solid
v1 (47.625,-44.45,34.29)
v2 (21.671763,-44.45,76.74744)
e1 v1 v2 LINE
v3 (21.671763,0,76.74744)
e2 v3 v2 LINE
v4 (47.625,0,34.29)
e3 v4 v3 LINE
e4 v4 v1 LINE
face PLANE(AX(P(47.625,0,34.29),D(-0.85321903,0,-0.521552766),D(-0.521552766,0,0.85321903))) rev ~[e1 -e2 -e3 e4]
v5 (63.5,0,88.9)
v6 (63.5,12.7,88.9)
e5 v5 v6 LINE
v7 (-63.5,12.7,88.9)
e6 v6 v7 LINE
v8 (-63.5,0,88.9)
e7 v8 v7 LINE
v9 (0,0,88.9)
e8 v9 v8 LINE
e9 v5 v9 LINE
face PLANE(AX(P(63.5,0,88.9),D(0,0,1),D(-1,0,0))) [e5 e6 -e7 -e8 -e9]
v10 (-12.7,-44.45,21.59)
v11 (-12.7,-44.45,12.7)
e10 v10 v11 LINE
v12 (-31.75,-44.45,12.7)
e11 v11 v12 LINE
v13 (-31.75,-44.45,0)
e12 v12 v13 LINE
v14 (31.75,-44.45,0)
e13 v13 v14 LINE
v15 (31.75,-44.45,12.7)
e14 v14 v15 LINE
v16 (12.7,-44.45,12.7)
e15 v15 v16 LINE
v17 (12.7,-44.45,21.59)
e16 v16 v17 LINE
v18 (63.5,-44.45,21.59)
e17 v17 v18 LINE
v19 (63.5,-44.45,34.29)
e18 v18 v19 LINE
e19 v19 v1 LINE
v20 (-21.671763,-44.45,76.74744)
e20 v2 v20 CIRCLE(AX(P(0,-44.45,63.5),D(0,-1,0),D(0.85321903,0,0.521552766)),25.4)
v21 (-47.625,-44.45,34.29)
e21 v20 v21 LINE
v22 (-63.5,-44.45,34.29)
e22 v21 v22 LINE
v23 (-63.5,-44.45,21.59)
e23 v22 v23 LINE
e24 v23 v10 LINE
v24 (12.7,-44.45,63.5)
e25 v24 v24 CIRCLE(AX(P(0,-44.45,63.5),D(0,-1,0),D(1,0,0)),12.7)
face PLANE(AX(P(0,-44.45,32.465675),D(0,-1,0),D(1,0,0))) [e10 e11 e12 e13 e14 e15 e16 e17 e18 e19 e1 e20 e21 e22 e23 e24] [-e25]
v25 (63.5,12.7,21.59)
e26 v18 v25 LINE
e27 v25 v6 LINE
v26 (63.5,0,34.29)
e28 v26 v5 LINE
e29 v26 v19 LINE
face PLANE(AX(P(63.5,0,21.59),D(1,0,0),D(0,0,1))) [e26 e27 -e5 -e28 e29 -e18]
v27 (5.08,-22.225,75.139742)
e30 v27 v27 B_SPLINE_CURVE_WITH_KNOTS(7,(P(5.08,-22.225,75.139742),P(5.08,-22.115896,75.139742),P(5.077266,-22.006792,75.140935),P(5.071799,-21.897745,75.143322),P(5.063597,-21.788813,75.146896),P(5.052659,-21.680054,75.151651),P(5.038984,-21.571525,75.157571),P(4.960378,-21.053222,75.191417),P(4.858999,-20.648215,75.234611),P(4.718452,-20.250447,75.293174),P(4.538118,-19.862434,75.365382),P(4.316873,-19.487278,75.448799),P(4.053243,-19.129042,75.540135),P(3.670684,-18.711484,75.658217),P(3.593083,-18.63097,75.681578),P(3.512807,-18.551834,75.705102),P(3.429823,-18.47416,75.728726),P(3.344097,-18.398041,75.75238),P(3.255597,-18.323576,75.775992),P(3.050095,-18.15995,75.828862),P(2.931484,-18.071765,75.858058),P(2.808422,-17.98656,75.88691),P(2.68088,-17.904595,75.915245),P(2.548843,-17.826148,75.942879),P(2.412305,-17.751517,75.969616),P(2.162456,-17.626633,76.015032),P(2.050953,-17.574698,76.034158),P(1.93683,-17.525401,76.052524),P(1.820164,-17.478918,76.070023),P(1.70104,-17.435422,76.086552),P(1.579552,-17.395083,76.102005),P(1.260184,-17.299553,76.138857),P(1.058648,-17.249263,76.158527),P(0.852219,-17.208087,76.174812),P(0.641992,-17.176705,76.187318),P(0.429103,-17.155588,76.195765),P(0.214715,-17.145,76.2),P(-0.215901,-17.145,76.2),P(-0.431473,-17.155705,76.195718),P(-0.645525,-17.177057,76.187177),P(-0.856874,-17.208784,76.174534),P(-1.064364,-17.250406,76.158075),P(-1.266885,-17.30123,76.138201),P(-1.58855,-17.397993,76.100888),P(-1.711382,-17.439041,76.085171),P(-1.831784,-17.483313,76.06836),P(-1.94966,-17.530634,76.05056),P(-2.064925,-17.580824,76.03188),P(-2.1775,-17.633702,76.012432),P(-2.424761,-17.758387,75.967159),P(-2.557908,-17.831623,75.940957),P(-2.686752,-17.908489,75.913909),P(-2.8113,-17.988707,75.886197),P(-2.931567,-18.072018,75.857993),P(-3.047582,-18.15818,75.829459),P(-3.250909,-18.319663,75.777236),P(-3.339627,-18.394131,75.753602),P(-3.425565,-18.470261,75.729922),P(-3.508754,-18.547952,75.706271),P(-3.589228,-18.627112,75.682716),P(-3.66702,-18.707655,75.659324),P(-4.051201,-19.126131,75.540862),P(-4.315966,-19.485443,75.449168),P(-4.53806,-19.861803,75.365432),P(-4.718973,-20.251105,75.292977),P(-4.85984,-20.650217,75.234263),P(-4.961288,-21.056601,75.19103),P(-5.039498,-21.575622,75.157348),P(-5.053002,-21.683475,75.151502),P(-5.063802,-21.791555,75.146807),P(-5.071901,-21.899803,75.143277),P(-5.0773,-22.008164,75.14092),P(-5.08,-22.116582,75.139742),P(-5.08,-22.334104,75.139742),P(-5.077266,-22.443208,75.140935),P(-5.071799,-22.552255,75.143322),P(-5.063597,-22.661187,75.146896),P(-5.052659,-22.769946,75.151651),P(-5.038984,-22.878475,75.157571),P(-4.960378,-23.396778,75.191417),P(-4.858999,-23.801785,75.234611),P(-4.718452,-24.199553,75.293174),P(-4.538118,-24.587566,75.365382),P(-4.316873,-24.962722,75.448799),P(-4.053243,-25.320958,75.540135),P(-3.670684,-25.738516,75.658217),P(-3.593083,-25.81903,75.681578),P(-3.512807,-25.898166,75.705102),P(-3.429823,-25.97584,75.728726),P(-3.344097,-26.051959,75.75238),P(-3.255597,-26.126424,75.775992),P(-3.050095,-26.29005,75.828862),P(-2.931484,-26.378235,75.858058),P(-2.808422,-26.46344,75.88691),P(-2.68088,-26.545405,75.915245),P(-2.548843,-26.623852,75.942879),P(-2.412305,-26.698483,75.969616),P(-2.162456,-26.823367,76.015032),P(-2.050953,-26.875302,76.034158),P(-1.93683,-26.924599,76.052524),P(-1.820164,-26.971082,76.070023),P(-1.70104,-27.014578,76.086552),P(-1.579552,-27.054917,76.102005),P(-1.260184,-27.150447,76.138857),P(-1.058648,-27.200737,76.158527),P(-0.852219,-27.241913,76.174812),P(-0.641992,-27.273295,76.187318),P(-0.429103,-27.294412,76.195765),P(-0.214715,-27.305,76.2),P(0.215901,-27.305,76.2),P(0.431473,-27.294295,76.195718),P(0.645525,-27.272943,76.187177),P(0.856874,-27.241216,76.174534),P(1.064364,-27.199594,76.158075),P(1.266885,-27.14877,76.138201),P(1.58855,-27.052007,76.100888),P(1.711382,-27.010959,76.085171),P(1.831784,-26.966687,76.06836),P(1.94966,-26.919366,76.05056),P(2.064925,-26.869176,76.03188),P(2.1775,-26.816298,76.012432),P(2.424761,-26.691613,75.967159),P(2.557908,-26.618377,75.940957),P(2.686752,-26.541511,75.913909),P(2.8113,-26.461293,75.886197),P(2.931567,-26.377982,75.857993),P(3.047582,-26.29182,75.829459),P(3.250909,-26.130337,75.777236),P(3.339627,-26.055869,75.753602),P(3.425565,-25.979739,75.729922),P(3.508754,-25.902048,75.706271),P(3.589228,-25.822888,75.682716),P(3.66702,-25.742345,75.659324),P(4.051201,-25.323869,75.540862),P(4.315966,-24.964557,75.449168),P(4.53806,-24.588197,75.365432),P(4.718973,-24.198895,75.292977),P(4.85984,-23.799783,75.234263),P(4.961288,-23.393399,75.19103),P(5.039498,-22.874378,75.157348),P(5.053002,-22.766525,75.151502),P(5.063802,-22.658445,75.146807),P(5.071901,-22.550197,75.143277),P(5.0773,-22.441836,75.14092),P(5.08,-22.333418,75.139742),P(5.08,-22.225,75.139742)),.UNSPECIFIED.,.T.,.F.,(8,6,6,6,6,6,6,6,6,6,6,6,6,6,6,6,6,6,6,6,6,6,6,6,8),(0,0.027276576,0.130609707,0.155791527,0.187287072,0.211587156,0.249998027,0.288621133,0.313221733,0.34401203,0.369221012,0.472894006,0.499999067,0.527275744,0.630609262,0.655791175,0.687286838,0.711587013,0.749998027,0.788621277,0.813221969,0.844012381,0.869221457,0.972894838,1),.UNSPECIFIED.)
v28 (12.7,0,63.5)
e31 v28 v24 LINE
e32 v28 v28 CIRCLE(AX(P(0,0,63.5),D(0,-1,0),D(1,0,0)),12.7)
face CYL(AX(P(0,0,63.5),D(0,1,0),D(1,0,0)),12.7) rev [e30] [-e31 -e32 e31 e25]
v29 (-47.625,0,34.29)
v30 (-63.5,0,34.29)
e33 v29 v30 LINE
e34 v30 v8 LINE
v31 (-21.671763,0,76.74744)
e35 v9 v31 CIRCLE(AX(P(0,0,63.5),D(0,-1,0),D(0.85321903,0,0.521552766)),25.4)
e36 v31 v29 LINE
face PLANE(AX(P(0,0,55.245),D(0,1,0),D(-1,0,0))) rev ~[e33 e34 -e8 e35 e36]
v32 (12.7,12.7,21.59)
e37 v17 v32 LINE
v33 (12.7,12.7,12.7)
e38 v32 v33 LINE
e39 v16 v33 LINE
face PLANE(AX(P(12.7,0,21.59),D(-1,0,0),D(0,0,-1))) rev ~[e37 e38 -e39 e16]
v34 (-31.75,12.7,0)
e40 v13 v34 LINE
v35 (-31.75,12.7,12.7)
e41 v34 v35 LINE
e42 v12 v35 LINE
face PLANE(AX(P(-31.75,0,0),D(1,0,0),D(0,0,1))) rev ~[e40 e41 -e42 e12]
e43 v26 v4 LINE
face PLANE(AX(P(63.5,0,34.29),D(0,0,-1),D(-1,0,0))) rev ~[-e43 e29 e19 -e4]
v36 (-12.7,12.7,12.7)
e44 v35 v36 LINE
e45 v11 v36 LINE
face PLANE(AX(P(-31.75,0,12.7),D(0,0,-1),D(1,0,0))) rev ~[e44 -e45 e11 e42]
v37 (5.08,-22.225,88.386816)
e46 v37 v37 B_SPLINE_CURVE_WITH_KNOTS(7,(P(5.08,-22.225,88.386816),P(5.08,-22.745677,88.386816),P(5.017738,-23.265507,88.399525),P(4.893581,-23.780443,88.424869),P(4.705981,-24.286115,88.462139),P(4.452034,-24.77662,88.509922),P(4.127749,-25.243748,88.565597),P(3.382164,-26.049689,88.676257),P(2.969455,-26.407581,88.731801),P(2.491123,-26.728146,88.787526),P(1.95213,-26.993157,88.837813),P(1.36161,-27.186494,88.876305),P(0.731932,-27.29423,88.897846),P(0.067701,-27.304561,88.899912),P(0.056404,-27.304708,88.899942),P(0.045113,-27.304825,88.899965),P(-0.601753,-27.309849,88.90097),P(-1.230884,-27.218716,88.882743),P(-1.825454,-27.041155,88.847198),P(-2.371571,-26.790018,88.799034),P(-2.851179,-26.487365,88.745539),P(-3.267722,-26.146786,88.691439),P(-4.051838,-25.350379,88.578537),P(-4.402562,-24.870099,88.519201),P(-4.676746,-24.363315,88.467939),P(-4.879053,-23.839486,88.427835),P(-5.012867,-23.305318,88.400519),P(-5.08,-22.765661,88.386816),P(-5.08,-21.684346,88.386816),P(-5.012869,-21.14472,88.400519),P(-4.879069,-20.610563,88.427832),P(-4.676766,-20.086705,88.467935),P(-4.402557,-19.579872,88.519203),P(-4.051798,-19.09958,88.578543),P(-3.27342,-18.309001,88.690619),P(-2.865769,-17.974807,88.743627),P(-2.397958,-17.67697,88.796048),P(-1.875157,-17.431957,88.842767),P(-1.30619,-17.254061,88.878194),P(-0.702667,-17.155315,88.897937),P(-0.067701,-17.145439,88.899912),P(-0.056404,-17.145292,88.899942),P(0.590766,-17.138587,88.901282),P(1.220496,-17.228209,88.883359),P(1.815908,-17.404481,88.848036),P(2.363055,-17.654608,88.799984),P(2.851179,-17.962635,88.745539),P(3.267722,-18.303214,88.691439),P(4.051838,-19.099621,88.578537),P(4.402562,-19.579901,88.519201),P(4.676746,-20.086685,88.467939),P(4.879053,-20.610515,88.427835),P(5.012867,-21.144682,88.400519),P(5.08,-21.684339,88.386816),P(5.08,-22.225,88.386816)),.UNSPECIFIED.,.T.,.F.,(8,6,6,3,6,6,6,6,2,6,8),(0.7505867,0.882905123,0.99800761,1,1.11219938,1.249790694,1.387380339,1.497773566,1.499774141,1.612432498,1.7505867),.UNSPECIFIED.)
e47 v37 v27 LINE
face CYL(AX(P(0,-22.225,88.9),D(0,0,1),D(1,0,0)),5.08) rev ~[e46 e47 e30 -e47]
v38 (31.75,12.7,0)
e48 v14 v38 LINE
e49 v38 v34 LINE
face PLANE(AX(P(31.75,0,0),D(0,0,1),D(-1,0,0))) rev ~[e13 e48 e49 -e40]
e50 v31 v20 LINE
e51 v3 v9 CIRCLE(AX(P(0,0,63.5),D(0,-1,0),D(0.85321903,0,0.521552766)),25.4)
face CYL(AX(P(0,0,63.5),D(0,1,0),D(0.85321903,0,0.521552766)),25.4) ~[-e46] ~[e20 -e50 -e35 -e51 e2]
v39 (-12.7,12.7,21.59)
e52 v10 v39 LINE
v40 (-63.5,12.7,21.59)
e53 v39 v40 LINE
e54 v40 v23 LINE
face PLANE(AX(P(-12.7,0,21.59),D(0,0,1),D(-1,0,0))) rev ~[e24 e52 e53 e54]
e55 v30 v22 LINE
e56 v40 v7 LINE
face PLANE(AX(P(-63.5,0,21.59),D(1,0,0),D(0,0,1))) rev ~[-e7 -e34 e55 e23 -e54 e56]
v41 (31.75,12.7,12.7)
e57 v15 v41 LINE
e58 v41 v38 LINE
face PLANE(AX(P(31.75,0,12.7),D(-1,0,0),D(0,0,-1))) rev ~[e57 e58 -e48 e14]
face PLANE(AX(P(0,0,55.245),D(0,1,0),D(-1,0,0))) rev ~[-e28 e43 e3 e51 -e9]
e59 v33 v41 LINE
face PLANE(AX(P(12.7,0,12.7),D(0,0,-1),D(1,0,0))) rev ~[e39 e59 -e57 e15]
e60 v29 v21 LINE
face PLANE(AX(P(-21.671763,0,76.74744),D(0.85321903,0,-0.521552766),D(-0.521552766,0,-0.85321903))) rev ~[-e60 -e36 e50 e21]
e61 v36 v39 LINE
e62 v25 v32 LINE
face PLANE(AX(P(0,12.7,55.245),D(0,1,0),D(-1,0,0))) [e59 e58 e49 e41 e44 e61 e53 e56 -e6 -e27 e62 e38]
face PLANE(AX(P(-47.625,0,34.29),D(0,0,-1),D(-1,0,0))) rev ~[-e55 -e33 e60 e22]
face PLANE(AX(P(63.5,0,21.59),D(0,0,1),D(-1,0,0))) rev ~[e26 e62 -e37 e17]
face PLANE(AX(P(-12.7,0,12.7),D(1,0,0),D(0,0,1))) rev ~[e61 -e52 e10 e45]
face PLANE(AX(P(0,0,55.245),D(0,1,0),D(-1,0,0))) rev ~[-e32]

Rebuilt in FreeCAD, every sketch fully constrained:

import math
import FreeCAD as App
import Part
import Sketcher

V = App.Vector
Q = App.Units.Quantity


def add_polygon(sketch, points):
    """Adds a closed chain of lines whose ends are joined by coincident constraints."""
    first, n = sketch.GeometryCount, len(points)
    for a, b in zip(points, points[1:] + points[:1]):
        sketch.addGeometry(Part.LineSegment(App.Vector(*a, 0), App.Vector(*b, 0)), False)
    for i in range(n):
        sketch.addConstraint(Sketcher.Constraint("Coincident", first + i, 2, first + (i + 1) % n, 1))

doc = App.newDocument("Part")
params = doc.addObject("Spreadsheet::Sheet", "Params")
for row, (alias, value) in enumerate([
    ("sketch1_diameter", "1 in"),
    ("sketch1_radius", "1 in"),
    ("sketch1_width", "2 in"),
    ("sketch1_width2", "2.5 in"),
    ("sketch1_height", "0.5 in"),
    ("pad1_length", "1.75 in"),
    ("sketch2_width", "2 in"),
    ("sketch2_width2", "5 in"),
    ("sketch2_width3", "2.5 in"),
    ("sketch2_height", "0.5 in"),
    ("sketch2_height2", "2.65 in"),
    ("pad2_length", "0.5 in"),
    ("sketch3_diameter", "0.4 in"),
    ("pocket1_length", "13.761258 mm"),
], start=1):
    params.set(f"A{row}", alias)
    params.set(f"B{row}", "=" + value)
    params.setAlias(f"B{row}", alias)

body = doc.addObject("PartDesign::Body", "Body")

# Sketch on XZ plane
sketch1 = body.newObject("Sketcher::SketchObject", "Sketch")
sketch1.AttachmentSupport = (doc.getObject("XZ_Plane"), [""])
sketch1.MapMode = "FlatFace"
sketch1.addGeometry([
    Part.LineSegment(V(-32, 13, 0), V(-32, 0, 0)),  # 0
    Part.LineSegment(V(-32, 0, 0), V(32, 0, 0)),  # 1
    Part.LineSegment(V(32, 0, 0), V(32, 13, 0)),  # 2
    Part.LineSegment(V(32, 13, 0), V(13, 13, 0)),  # 3
    Part.LineSegment(V(13, 13, 0), V(13, 22, 0)),  # 4
    Part.LineSegment(V(13, 22, 0), V(64, 22, 0)),  # 5
    Part.LineSegment(V(64, 22, 0), V(64, 34, 0)),  # 6
    Part.LineSegment(V(64, 34, 0), V(48, 34, 0)),  # 7
    Part.LineSegment(V(48, 34, 0), V(22, 77, 0)),  # 8
    Part.ArcOfCircle(Part.Circle(V(0, 64, 0), V(0, 0, 1), 25), math.radians(31), math.radians(149)),  # 9
    Part.LineSegment(V(-22, 77, 0), V(-48, 34, 0)),  # 10
    Part.LineSegment(V(-48, 34, 0), V(-64, 34, 0)),  # 11
    Part.LineSegment(V(-64, 34, 0), V(-64, 22, 0)),  # 12
    Part.LineSegment(V(-64, 22, 0), V(-13, 22, 0)),  # 13
    Part.LineSegment(V(-13, 22, 0), V(-13, 13, 0)),  # 14
    Part.LineSegment(V(-13, 13, 0), V(-32, 13, 0)),  # 15
    Part.Circle(V(0, 64, 0), V(0, 0, 1), 13),  # 16
], False)
sketch1.addConstraint([
    Sketcher.Constraint("Coincident", 0, 2, 1, 1),
    Sketcher.Constraint("Coincident", 1, 2, 2, 1),
    Sketcher.Constraint("Coincident", 2, 2, 3, 1),
    Sketcher.Constraint("Coincident", 3, 2, 4, 1),
    Sketcher.Constraint("Coincident", 4, 2, 5, 1),
    Sketcher.Constraint("Coincident", 5, 2, 6, 1),
    Sketcher.Constraint("Coincident", 6, 2, 7, 1),
    Sketcher.Constraint("Coincident", 7, 2, 8, 1),
    Sketcher.Constraint("Tangent", 8, 2, 9, 1),
    Sketcher.Constraint("Tangent", 9, 2, 10, 1),
    Sketcher.Constraint("Coincident", 10, 2, 11, 1),
    Sketcher.Constraint("Coincident", 11, 2, 12, 1),
    Sketcher.Constraint("Coincident", 12, 2, 13, 1),
    Sketcher.Constraint("Coincident", 13, 2, 14, 1),
    Sketcher.Constraint("Coincident", 14, 2, 15, 1),
    Sketcher.Constraint("Coincident", 15, 2, 0, 1),
    Sketcher.Constraint("Vertical", 0),
    Sketcher.Constraint("Horizontal", 1),
    Sketcher.Constraint("Vertical", 2),
    Sketcher.Constraint("Horizontal", 3),
    Sketcher.Constraint("Vertical", 4),
    Sketcher.Constraint("Horizontal", 5),
    Sketcher.Constraint("Vertical", 6),
    Sketcher.Constraint("Horizontal", 7),
    Sketcher.Constraint("Horizontal", 11),
    Sketcher.Constraint("Vertical", 12),
    Sketcher.Constraint("Horizontal", 13),
    Sketcher.Constraint("Vertical", 14),
    Sketcher.Constraint("Horizontal", 15),
    Sketcher.Constraint("Coincident", 16, 3, 9, 3),
    Sketcher.Constraint("Symmetric", 0, 2, 1, 2, -1, 1),
    Sketcher.Constraint("Symmetric", 8, 2, 9, 2, -2),
    Sketcher.Constraint("Symmetric", 6, 2, 11, 2, -2),
    Sketcher.Constraint("Symmetric", 4, 2, 13, 2, -2),
    Sketcher.Constraint("Horizontal", 3, 2, 14, 2),
    Sketcher.Constraint("Equal", 2, 6),
    Sketcher.Constraint("Diameter", 16, Q("1 in")),
    Sketcher.Constraint("Radius", 9, Q("1 in")),
    Sketcher.Constraint("DistanceX", 5, 1, 5, 2, Q("2 in")),
    Sketcher.Constraint("DistanceX", 1, 1, 1, 2, Q("2.5 in")),
    Sketcher.Constraint("DistanceY", 0, 2, 0, 1, Q("0.5 in")),
    Sketcher.Constraint("DistanceY", 2, 2, 9, 3, Q("2 in")),
    Sketcher.Constraint("DistanceX", 13, 2, 4, 2, Q("1 in")),
    Sketcher.Constraint("DistanceY", 4, 1, 4, 2, Q("0.35 in")),
    Sketcher.Constraint("DistanceX", 7, 2, 7, 1, Q("0.625 in")),
])
sketch1.setExpression("Constraints[36]", "Params.sketch1_diameter")
sketch1.setExpression("Constraints[37]", "Params.sketch1_radius")
sketch1.setExpression("Constraints[38]", "Params.sketch1_width")
sketch1.setExpression("Constraints[39]", "Params.sketch1_width2")
sketch1.setExpression("Constraints[40]", "Params.sketch1_height")
pad1 = body.newObject("PartDesign::Pad", "Pad")
pad1.Profile = sketch1
pad1.setExpression("Length", "Params.pad1_length")

# Sketch on XZ plane
sketch2 = body.newObject("Sketcher::SketchObject", "Sketch001")
sketch2.AttachmentSupport = (doc.getObject("XZ_Plane"), [""])
sketch2.MapMode = "FlatFace"
add_polygon(sketch2, [(64, 89), (64, 22), (13, 22), (13, 13), (32, 13), (32, 0), (-32, 0), (-32, 13), (-13, 13), (-13, 22), (-64, 22), (-64, 89)])  # lines 0-11
sketch2.addConstraint([
    Sketcher.Constraint("Vertical", 0),
    Sketcher.Constraint("Horizontal", 1),
    Sketcher.Constraint("Vertical", 2),
    Sketcher.Constraint("Horizontal", 3),
    Sketcher.Constraint("Vertical", 4),
    Sketcher.Constraint("Horizontal", 5),
    Sketcher.Constraint("Vertical", 6),
    Sketcher.Constraint("Horizontal", 7),
    Sketcher.Constraint("Vertical", 8),
    Sketcher.Constraint("Horizontal", 9),
    Sketcher.Constraint("Vertical", 10),
    Sketcher.Constraint("Horizontal", 11),
    Sketcher.Constraint("Symmetric", 4, 2, 5, 2, -1, 1),
    Sketcher.Constraint("Symmetric", 2, 2, 7, 2, -2),
    Sketcher.Constraint("Symmetric", 0, 2, 9, 2, -2),
    Sketcher.Constraint("DistanceX", 1, 2, 1, 1, Q("2 in")),
    Sketcher.Constraint("DistanceX", 11, 1, 11, 2, Q("5 in")),
    Sketcher.Constraint("DistanceX", 5, 2, 5, 1, Q("2.5 in")),
    Sketcher.Constraint("DistanceY", 4, 2, 4, 1, Q("0.5 in")),
    Sketcher.Constraint("DistanceY", 6, 2, 10, 2, Q("3 in")),
    Sketcher.Constraint("DistanceY", 0, 2, 0, 1, Q("2.65 in")),
])
sketch2.setExpression("Constraints[27]", "Params.sketch2_width")
sketch2.setExpression("Constraints[28]", "Params.sketch2_width2")
sketch2.setExpression("Constraints[29]", "Params.sketch2_width3")
sketch2.setExpression("Constraints[30]", "Params.sketch2_height")
sketch2.setExpression("Constraints[32]", "Params.sketch2_height2")
pad2 = body.newObject("PartDesign::Pad", "Pad001")
pad2.Profile = sketch2
pad2.setExpression("Length", "Params.pad2_length")
pad2.Reversed = True

# Sketch on XY plane
sketch3 = body.newObject("Sketcher::SketchObject", "Sketch002")
sketch3.AttachmentSupport = (doc.getObject("XY_Plane"), [""])
sketch3.MapMode = "FlatFace"
sketch3.AttachmentOffset = App.Placement(V(0, 0, 3.5 * 25.4), App.Rotation())
sketch3.addGeometry(Part.Circle(V(0, -22, 0), V(0, 0, 1), 5), False)
sketch3.addConstraint([
    Sketcher.Constraint("PointOnObject", 0, 3, -2),
    Sketcher.Constraint("Diameter", 0, Q("0.4 in")),
    Sketcher.Constraint("DistanceY", 0, 3, -1, 1, Q("0.875 in")),
])
sketch3.setExpression("Constraints[1]", "Params.sketch3_diameter")
pocket1 = body.newObject("PartDesign::Pocket", "Pocket")
pocket1.Profile = sketch3
pocket1.setExpression("Length", "Params.pocket1_length")

doc.recompute()
